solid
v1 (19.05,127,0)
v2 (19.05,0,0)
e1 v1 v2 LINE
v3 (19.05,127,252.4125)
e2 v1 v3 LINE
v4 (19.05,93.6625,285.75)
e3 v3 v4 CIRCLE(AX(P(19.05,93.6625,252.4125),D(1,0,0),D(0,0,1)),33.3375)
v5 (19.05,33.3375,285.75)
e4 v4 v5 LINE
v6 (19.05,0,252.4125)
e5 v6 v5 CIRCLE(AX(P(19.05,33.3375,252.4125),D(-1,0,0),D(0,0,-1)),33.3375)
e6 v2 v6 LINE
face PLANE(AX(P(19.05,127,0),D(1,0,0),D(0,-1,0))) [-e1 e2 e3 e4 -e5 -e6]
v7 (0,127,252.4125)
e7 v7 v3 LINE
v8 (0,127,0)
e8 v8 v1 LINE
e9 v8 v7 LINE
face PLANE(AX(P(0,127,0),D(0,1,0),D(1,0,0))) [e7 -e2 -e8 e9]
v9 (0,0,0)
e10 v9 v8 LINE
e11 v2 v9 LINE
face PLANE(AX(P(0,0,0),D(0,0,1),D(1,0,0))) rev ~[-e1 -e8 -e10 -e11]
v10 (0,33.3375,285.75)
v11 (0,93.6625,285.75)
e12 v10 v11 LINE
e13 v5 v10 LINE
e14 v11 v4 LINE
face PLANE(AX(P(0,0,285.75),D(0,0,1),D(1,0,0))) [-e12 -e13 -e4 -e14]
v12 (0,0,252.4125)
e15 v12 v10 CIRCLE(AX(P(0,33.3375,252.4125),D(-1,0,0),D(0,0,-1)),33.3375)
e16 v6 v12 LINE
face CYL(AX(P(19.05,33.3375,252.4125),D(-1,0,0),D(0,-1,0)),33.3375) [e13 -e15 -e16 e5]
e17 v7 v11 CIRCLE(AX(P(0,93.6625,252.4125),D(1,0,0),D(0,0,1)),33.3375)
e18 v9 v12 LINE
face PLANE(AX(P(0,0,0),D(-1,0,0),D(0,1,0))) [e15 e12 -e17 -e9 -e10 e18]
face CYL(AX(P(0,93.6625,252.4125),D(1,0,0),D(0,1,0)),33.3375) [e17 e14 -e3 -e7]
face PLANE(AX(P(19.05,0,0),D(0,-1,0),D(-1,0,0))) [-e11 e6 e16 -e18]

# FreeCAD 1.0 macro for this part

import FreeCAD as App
import Part
import Sketcher
Q = App.Units.Quantity


def edges_at(feature, points):
    """Names of the edges that pass closest to the given points."""
    edges = feature.Shape.Edges
    near = lambda p: min(range(len(edges)), key=lambda i: edges[i].distToShape(Part.Vertex(*p))[0])
    return sorted({f"Edge{near(p) + 1}" for p in points})


def add_polygon(sketch, points):
    """Adds a closed chain of lines whose ends are joined by coincident constraints."""
    first, n = sketch.GeometryCount, len(points)
    for a, b in zip(points, points[1:] + points[:1]):
        sketch.addGeometry(Part.LineSegment(App.Vector(*a, 0), App.Vector(*b, 0)), False)
    for i in range(n):
        sketch.addConstraint(Sketcher.Constraint("Coincident", first + i, 2, first + (i + 1) % n, 1))

doc = App.newDocument("Part")
body = doc.addObject("PartDesign::Body", "Body")

# Sketch on XY plane
sketch1 = doc.addObject("Sketcher::SketchObject", "Sketch")
body.addObject(sketch1)
sketch1.AttachmentSupport = (doc.XY_Plane, [""])
sketch1.MapMode = "FlatFace"
add_polygon(sketch1, [(0, 127), (0, 0), (19, 0), (19, 127)])  # lines 0-3
sketch1.addConstraint([
    Sketcher.Constraint("Vertical", 0),
    Sketcher.Constraint("Horizontal", 1),
    Sketcher.Constraint("Vertical", 2),
    Sketcher.Constraint("Horizontal", 3),
    Sketcher.Constraint("Coincident", 0, 2, -1, 1),
    Sketcher.Constraint("DistanceY", 0, 2, 0, 1, Q("5 in")),
    Sketcher.Constraint("DistanceX", 1, 1, 1, 2, Q("0.75 in")),
])
pad1 = doc.addObject("PartDesign::Pad", "Pad")
body.addObject(pad1)
pad1.Profile = sketch1
pad1.Length = Q("11.25 in")
doc.recompute()

fillet = doc.addObject("PartDesign::Fillet", "Fillet")
body.addObject(fillet)
fillet.Base = (pad1, edges_at(pad1, [(9.525, 0, 285.75), (9.525, 127, 285.75)]))
fillet.Radius = Q("1.3125 in")

doc.recompute()
